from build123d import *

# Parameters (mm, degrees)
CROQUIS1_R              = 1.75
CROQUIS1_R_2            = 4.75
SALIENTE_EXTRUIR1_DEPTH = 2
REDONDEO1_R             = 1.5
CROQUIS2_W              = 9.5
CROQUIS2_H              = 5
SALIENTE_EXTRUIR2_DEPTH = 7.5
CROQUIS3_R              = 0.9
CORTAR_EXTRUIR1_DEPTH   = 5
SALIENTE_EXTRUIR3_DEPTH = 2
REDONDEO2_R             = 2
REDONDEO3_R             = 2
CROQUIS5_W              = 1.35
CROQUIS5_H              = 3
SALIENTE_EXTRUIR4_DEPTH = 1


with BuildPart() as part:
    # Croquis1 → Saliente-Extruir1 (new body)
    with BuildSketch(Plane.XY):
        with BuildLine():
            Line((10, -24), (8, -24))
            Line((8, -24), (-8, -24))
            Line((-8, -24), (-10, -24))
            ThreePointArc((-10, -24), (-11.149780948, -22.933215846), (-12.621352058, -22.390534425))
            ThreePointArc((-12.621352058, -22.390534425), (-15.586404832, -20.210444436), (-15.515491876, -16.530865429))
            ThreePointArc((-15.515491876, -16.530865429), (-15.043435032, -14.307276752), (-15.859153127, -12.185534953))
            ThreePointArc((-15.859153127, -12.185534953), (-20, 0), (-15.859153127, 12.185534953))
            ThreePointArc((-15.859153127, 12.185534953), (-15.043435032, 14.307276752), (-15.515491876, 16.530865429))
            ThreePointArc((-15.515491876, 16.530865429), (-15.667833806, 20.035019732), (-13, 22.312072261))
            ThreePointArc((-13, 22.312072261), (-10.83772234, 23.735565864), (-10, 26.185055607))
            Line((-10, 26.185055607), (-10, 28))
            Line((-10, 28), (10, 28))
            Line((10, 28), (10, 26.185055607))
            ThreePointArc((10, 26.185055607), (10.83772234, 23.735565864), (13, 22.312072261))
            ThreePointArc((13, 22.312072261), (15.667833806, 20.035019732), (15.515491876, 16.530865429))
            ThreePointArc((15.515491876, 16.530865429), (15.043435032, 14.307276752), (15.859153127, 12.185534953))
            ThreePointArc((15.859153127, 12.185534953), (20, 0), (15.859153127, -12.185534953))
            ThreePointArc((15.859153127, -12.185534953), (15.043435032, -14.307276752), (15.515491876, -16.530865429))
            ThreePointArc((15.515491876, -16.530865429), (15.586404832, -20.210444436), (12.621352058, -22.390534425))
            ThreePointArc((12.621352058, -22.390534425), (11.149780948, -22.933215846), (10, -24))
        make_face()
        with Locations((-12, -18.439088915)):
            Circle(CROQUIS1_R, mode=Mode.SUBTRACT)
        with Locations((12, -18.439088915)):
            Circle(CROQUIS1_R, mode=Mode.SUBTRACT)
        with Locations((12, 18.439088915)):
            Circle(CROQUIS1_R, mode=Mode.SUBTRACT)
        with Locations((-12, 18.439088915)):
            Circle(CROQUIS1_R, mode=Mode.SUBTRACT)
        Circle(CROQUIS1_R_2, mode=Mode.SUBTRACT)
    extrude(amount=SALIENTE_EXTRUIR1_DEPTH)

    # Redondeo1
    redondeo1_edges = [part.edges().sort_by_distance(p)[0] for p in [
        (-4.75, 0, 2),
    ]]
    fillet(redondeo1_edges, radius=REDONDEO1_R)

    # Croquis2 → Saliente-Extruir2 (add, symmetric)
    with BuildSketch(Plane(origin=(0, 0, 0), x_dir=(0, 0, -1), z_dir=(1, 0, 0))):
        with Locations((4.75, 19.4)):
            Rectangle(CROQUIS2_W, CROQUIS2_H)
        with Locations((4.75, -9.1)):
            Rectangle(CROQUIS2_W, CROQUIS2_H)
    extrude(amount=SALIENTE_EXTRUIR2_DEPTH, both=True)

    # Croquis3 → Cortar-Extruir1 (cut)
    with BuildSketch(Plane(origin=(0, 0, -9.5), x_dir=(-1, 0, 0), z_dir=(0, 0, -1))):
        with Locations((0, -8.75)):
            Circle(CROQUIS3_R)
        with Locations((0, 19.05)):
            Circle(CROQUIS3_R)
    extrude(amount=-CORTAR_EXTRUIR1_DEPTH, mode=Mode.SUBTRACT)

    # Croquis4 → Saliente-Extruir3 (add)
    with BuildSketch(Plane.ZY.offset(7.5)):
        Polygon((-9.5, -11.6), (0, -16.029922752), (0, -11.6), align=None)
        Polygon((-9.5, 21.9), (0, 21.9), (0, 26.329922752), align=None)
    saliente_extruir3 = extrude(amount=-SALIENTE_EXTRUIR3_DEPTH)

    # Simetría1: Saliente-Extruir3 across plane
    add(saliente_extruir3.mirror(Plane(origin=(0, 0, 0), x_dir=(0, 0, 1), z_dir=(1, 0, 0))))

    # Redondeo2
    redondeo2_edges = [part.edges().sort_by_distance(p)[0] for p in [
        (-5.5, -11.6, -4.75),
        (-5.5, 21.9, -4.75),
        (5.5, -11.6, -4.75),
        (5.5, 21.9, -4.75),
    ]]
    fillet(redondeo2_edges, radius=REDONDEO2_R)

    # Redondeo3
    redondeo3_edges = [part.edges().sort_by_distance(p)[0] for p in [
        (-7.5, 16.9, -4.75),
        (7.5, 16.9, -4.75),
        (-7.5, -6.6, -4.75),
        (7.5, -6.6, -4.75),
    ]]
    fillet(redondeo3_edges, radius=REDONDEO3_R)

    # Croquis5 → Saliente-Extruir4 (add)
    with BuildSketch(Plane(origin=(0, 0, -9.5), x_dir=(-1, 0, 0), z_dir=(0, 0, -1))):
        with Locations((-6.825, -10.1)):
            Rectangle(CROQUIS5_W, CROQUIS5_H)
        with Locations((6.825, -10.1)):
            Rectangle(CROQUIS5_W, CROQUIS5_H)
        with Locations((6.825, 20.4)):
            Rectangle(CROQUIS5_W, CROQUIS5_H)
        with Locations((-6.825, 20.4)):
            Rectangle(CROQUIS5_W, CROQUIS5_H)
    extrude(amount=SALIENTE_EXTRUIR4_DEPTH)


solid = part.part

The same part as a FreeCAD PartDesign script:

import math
import FreeCAD as App
import Part
import Sketcher
from FreeCAD import Vector
Q = App.Units.Quantity


def edges_at(feature, points):
    """Names of the edges that pass closest to the given points."""
    edges = feature.Shape.Edges
    near = lambda p: min(range(len(edges)), key=lambda i: edges[i].distToShape(Part.Vertex(*p))[0])
    return sorted({f"Edge{near(p) + 1}" for p in points})


def add_polygon(sketch, points):
    """Adds a closed chain of lines whose ends are joined by coincident constraints."""
    first, n = sketch.GeometryCount, len(points)
    for a, b in zip(points, points[1:] + points[:1]):
        sketch.addGeometry(Part.LineSegment(App.Vector(*a, 0), App.Vector(*b, 0)), False)
    for i in range(n):
        sketch.addConstraint(Sketcher.Constraint("Coincident", first + i, 2, first + (i + 1) % n, 1))

doc = App.newDocument("Part")
body = doc.addObject("PartDesign::Body", "Body")

# Sketch on XY plane
sketch1 = doc.addObject("Sketcher::SketchObject", "Sketch")
body.addObject(sketch1)
sketch1.AttachmentSupport = (doc.XY_Plane, [""])
sketch1.MapMode = "FlatFace"
sketch1.addGeometry(Part.LineSegment(Vector(-10, -24, 0), Vector(10, -24, 0)), False)
sketch1.addGeometry(Part.ArcOfCircle(Part.Circle(Vector(13.2, -26.3, 0), Vector(0, 0, 1), 4), math.radians(99), math.radians(144)), False)
sketch1.addGeometry(Part.ArcOfCircle(Part.Circle(Vector(12, -18.4, 0), Vector(0, 0, 1), 4), math.radians(-81), math.radians(28)), False)
sketch1.addGeometry(Part.ArcOfCircle(Part.Circle(Vector(19, -14.6, 0), Vector(0, 0, 1), 4), math.radians(142), math.radians(208)), False)
sketch1.addGeometry(Part.ArcOfCircle(Part.Circle(Vector(0, 0, 0), Vector(0, 0, 1), 20), math.radians(-38), math.radians(38)), False)
sketch1.addGeometry(Part.ArcOfCircle(Part.Circle(Vector(19, 14.6, 0), Vector(0, 0, 1), 4), math.radians(152), math.radians(218)), False)
sketch1.addGeometry(Part.ArcOfCircle(Part.Circle(Vector(12, 18.4, 0), Vector(0, 0, 1), 4), math.radians(-28), math.radians(76)), False)
sketch1.addGeometry(Part.ArcOfCircle(Part.Circle(Vector(14, 26.2, 0), Vector(0, 0, 1), 4), math.radians(180), math.radians(256)), False)
sketch1.addGeometry(Part.LineSegment(Vector(10, 26.2, 0), Vector(10, 28, 0)), False)
sketch1.addGeometry(Part.LineSegment(Vector(10, 28, 0), Vector(-10, 28, 0)), False)
sketch1.addGeometry(Part.LineSegment(Vector(-10, 28, 0), Vector(-10, 26.2, 0)), False)
sketch1.addGeometry(Part.ArcOfCircle(Part.Circle(Vector(-14, 26.2, 0), Vector(0, 0, 1), 4), math.radians(-76), math.radians(0)), False)
sketch1.addGeometry(Part.ArcOfCircle(Part.Circle(Vector(-12, 18.4, 0), Vector(0, 0, 1), 4), math.radians(104), math.radians(208)), False)
sketch1.addGeometry(Part.ArcOfCircle(Part.Circle(Vector(-19, 14.6, 0), Vector(0, 0, 1), 4), math.radians(-38), math.radians(28)), False)
sketch1.addGeometry(Part.ArcOfCircle(Part.Circle(Vector(0, 0, 0), Vector(0, 0, 1), 20), math.radians(142), math.radians(218)), False)
sketch1.addGeometry(Part.ArcOfCircle(Part.Circle(Vector(-19, -14.6, 0), Vector(0, 0, 1), 4), math.radians(-28), math.radians(38)), False)
sketch1.addGeometry(Part.ArcOfCircle(Part.Circle(Vector(-12, -18.4, 0), Vector(0, 0, 1), 4), math.radians(152), math.radians(261)), False)
sketch1.addGeometry(Part.ArcOfCircle(Part.Circle(Vector(-13.2, -26.3, 0), Vector(0, 0, 1), 4), math.radians(36), math.radians(81)), False)
sketch1.addGeometry(Part.Circle(Vector(12, -18.4, 0), Vector(0, 0, 1), 1.8), False)
sketch1.addGeometry(Part.Circle(Vector(-12, -18.4, 0), Vector(0, 0, 1), 1.8), False)
sketch1.addGeometry(Part.Circle(Vector(12, 18.4, 0), Vector(0, 0, 1), 1.8), False)
sketch1.addGeometry(Part.Circle(Vector(0, 0, 0), Vector(0, 0, 1), 4.8), False)
sketch1.addGeometry(Part.Circle(Vector(-12, 18.4, 0), Vector(0, 0, 1), 1.8), False)
sketch1.addConstraint(Sketcher.Constraint("Coincident", 0, 2, 1, 2))
sketch1.addConstraint(Sketcher.Constraint("Tangent", 1, 1, 2, 1))
sketch1.addConstraint(Sketcher.Constraint("Tangent", 2, 2, 3, 2))
sketch1.addConstraint(Sketcher.Constraint("Tangent", 3, 1, 4, 1))
sketch1.addConstraint(Sketcher.Constraint("Tangent", 4, 2, 5, 2))
sketch1.addConstraint(Sketcher.Constraint("Tangent", 5, 1, 6, 1))
sketch1.addConstraint(Sketcher.Constraint("Tangent", 6, 2, 7, 2))
sketch1.addConstraint(Sketcher.Constraint("Tangent", 7, 1, 8, 1))
sketch1.addConstraint(Sketcher.Constraint("Coincident", 8, 2, 9, 1))
sketch1.addConstraint(Sketcher.Constraint("Coincident", 9, 2, 10, 1))
sketch1.addConstraint(Sketcher.Constraint("Tangent", 10, 2, 11, 2))
sketch1.addConstraint(Sketcher.Constraint("Tangent", 11, 1, 12, 1))
sketch1.addConstraint(Sketcher.Constraint("Tangent", 12, 2, 13, 2))
sketch1.addConstraint(Sketcher.Constraint("Tangent", 13, 1, 14, 1))
sketch1.addConstraint(Sketcher.Constraint("Tangent", 14, 2, 15, 2))
sketch1.addConstraint(Sketcher.Constraint("Tangent", 15, 1, 16, 1))
sketch1.addConstraint(Sketcher.Constraint("Tangent", 16, 2, 17, 2))
sketch1.addConstraint(Sketcher.Constraint("Coincident", 17, 1, 0, 1))
sketch1.addConstraint(Sketcher.Constraint("Horizontal", 0))
sketch1.addConstraint(Sketcher.Constraint("Vertical", 8))
sketch1.addConstraint(Sketcher.Constraint("Horizontal", 9))
sketch1.addConstraint(Sketcher.Constraint("Vertical", 10))
sketch1.addConstraint(Sketcher.Constraint("Coincident", 4, 3, -1, 1))
sketch1.addConstraint(Sketcher.Constraint("Coincident", 14, 3, -1, 1))
sketch1.addConstraint(Sketcher.Constraint("Coincident", 21, 3, -1, 1))
sketch1.addConstraint(Sketcher.Constraint("Coincident", 18, 3, 2, 3))
sketch1.addConstraint(Sketcher.Constraint("Coincident", 19, 3, 16, 3))
sketch1.addConstraint(Sketcher.Constraint("Coincident", 20, 3, 6, 3))
sketch1.addConstraint(Sketcher.Constraint("Coincident", 22, 3, 12, 3))
sketch1.addConstraint(Sketcher.Constraint("Equal", 1, 2))
sketch1.addConstraint(Sketcher.Constraint("Equal", 2, 3))
sketch1.addConstraint(Sketcher.Constraint("Equal", 3, 5))
sketch1.addConstraint(Sketcher.Constraint("Equal", 5, 6))
sketch1.addConstraint(Sketcher.Constraint("Equal", 6, 7))
sketch1.addConstraint(Sketcher.Constraint("Equal", 7, 11))
sketch1.addConstraint(Sketcher.Constraint("Equal", 11, 12))
sketch1.addConstraint(Sketcher.Constraint("Equal", 12, 13))
sketch1.addConstraint(Sketcher.Constraint("Equal", 4, 14))
sketch1.addConstraint(Sketcher.Constraint("Equal", 13, 15))
sketch1.addConstraint(Sketcher.Constraint("Equal", 15, 16))
sketch1.addConstraint(Sketcher.Constraint("Equal", 16, 17))
sketch1.addConstraint(Sketcher.Constraint("Equal", 18, 19))
sketch1.addConstraint(Sketcher.Constraint("Equal", 19, 20))
sketch1.addConstraint(Sketcher.Constraint("Equal", 20, 22))
sketch1.addConstraint(Sketcher.Constraint("Symmetric", 2, 3, 12, 3, -1, 1))
sketch1.addConstraint(Sketcher.Constraint("Symmetric", 6, 3, 16, 3, -1, 1))
sketch1.addConstraint(Sketcher.Constraint("Symmetric", 7, 3, 11, 3, -2))
sketch1.addConstraint(Sketcher.Constraint("Symmetric", 1, 3, 17, 3, -2))
sketch1.addConstraint(Sketcher.Constraint("Vertical", 0, 2, 7, 1))
sketch1.addConstraint(Sketcher.Constraint("Radius", 1, Q("4 mm")))
sketch1.addConstraint(Sketcher.Constraint("Radius", 4, Q("20 mm")))
sketch1.addConstraint(Sketcher.Constraint("Diameter", 18, Q("3.5 mm")))
sketch1.addConstraint(Sketcher.Constraint("Diameter", 21, Q("9.5 mm")))
sketch1.addConstraint(Sketcher.Constraint("DistanceX", 0, 1, 0, 2, Q("20 mm")))
sketch1.addConstraint(Sketcher.Constraint("DistanceX", -1, 1, 2, 3, Q("12 mm")))
sketch1.addConstraint(Sketcher.Constraint("DistanceY", 0, 2, -1, 1, Q("24 mm")))
sketch1.addConstraint(Sketcher.Constraint("DistanceY", -1, 1, 8, 2, Q("28 mm")))
sketch1.addConstraint(Sketcher.Constraint("DistanceY", 1, 1, 3, 1, Q("10.204999 mm")))
pad1 = doc.addObject("PartDesign::Pad", "Pad")
body.addObject(pad1)
pad1.Profile = sketch1
pad1.Length = 2
doc.recompute()

fillet = doc.addObject("PartDesign::Fillet", "Fillet")
body.addObject(fillet)
fillet.Base = (pad1, edges_at(pad1, [(-4.75, 0, 2)]))
fillet.Radius = 1.5

# Sketch on YZ plane
sketch2 = doc.addObject("Sketcher::SketchObject", "Sketch001")
body.addObject(sketch2)
sketch2.AttachmentSupport = (doc.YZ_Plane, [""])
sketch2.MapMode = "FlatFace"
add_polygon(sketch2, [(22, 0), (17, 0), (17, -10), (22, -10)])  # lines 0-3
add_polygon(sketch2, [(-7, 0), (-12, 0), (-12, -10), (-7, -10)])  # lines 4-7
sketch2.addConstraint(Sketcher.Constraint("Horizontal", 0))
sketch2.addConstraint(Sketcher.Constraint("Vertical", 1))
sketch2.addConstraint(Sketcher.Constraint("Horizontal", 2))
sketch2.addConstraint(Sketcher.Constraint("Vertical", 3))
sketch2.addConstraint(Sketcher.Constraint("Horizontal", 4))
sketch2.addConstraint(Sketcher.Constraint("Vertical", 5))
sketch2.addConstraint(Sketcher.Constraint("Horizontal", 6))
sketch2.addConstraint(Sketcher.Constraint("Vertical", 7))
sketch2.addConstraint(Sketcher.Constraint("PointOnObject", 0, 2, -1))
sketch2.addConstraint(Sketcher.Constraint("PointOnObject", 4, 2, -1))
sketch2.addConstraint(Sketcher.Constraint("Horizontal", 2, 2, 5, 2))
sketch2.addConstraint(Sketcher.Constraint("Equal", 2, 4))
sketch2.addConstraint(Sketcher.Constraint("DistanceX", 0, 2, 0, 1, Q("5 mm")))
sketch2.addConstraint(Sketcher.Constraint("DistanceY", 1, 2, 1, 1, Q("9.5 mm")))
sketch2.addConstraint(Sketcher.Constraint("DistanceX", -1, 1, 0, 2, Q("16.9 mm")))
sketch2.addConstraint(Sketcher.Constraint("DistanceX", 4, 2, -1, 1, Q("11.6 mm")))
pad2 = doc.addObject("PartDesign::Pad", "Pad001")
body.addObject(pad2)
pad2.Profile = sketch2
pad2.Length = 15
pad2.Midplane = True

# Sketch on XY plane
sketch3 = doc.addObject("Sketcher::SketchObject", "Sketch002")
body.addObject(sketch3)
sketch3.AttachmentSupport = (doc.XY_Plane, [""])
sketch3.MapMode = "FlatFace"
sketch3.AttachmentOffset = App.Placement(Vector(0, 0, -9.5), App.Rotation())
sketch3.addGeometry(Part.Circle(Vector(0, -8.8, 0), Vector(0, 0, 1), 0.9), False)
sketch3.addGeometry(Part.Circle(Vector(0, 19.1, 0), Vector(0, 0, 1), 0.9), False)
sketch3.addConstraint(Sketcher.Constraint("Equal", 0, 1))
sketch3.addConstraint(Sketcher.Constraint("PointOnObject", 0, 3, -2))
sketch3.addConstraint(Sketcher.Constraint("PointOnObject", 1, 3, -2))
sketch3.addConstraint(Sketcher.Constraint("Diameter", 0, Q("1.8 mm")))
sketch3.addConstraint(Sketcher.Constraint("DistanceY", 0, 3, 1, 3, Q("27.8 mm")))
sketch3.addConstraint(Sketcher.Constraint("DistanceY", 0, 3, -1, 1, Q("8.75 mm")))
pocket1 = doc.addObject("PartDesign::Pocket", "Pocket")
body.addObject(pocket1)
pocket1.Profile = sketch3
pocket1.Length = 5
pocket1.Reversed = True

# Sketch on YZ plane
sketch4 = doc.addObject("Sketcher::SketchObject", "Sketch003")
body.addObject(sketch4)
sketch4.AttachmentSupport = (doc.YZ_Plane, [""])
sketch4.MapMode = "FlatFace"
sketch4.AttachmentOffset = App.Placement(Vector(0, 0, -7.5), App.Rotation())
add_polygon(sketch4, [(-11.6, -9.5), (-16, 0), (-11.6, 0)])  # lines 0-2
add_polygon(sketch4, [(21.9, -9.5), (21.9, 0), (26.3, 0)])  # lines 3-5
sketch4.addConstraint(Sketcher.Constraint("Horizontal", 1))
sketch4.addConstraint(Sketcher.Constraint("Vertical", 2))
sketch4.addConstraint(Sketcher.Constraint("Vertical", 3))
sketch4.addConstraint(Sketcher.Constraint("Horizontal", 4))
sketch4.addConstraint(Sketcher.Constraint("PointOnObject", 0, 2, -1))
sketch4.addConstraint(Sketcher.Constraint("PointOnObject", 3, 2, -1))
sketch4.addConstraint(Sketcher.Constraint("Horizontal", 2, 2, 5, 2))
sketch4.addConstraint(Sketcher.Constraint("Equal", 1, 4))
sketch4.addConstraint(Sketcher.Constraint("Angle", 0, Q("115 deg")))
sketch4.addConstraint(Sketcher.Constraint("DistanceY", 2, 2, 2, 1, Q("9.5 mm")))
sketch4.addConstraint(Sketcher.Constraint("DistanceX", 1, 2, -1, 1, Q("11.6 mm")))
sketch4.addConstraint(Sketcher.Constraint("DistanceX", -1, 1, 3, 2, Q("21.9 mm")))
pad3 = doc.addObject("PartDesign::Pad", "Pad002")
body.addObject(pad3)
pad3.Profile = sketch4
pad3.Length = 2
doc.recompute()

mirrored = doc.addObject("PartDesign::Mirrored", "Mirrored")
body.addObject(mirrored)
mirrored.Originals = [pad3]
mirrored.MirrorPlane = (doc.YZ_Plane, [""])
body.Tip = mirrored
doc.recompute()

fillet2 = doc.addObject("PartDesign::Fillet", "Fillet001")
body.addObject(fillet2)
fillet2.Base = (mirrored, edges_at(mirrored, [
    (-5.5, -11.6, -4.75),
    (-5.5, 21.9, -4.75),
    (5.5, -11.6, -4.75),
    (5.5, 21.9, -4.75),
]))
fillet2.Radius = 2
doc.recompute()

fillet3 = doc.addObject("PartDesign::Fillet", "Fillet002")
body.addObject(fillet3)
fillet3.Base = (fillet2, edges_at(fillet2, [
    (-7.5, 16.9, -4.75),
    (7.5, 16.9, -4.75),
    (-7.5, -6.6, -4.75),
    (7.5, -6.6, -4.75),
]))
fillet3.Radius = 2

# Sketch on XY plane
sketch5 = doc.addObject("Sketcher::SketchObject", "Sketch004")
body.addObject(sketch5)
sketch5.AttachmentSupport = (doc.XY_Plane, [""])
sketch5.MapMode = "FlatFace"
sketch5.AttachmentOffset = App.Placement(Vector(0, 0, -9.5), App.Rotation())
add_polygon(sketch5, [(7.5, -8.6), (7.5, -11.6), (6.2, -11.6), (6.2, -8.6)])  # lines 0-3
add_polygon(sketch5, [(-6.2, -8.6), (-6.2, -11.6), (-7.5, -11.6), (-7.5, -8.6)])  # lines 4-7
add_polygon(sketch5, [(-6.2, 21.9), (-6.2, 18.9), (-7.5, 18.9), (-7.5, 21.9)])  # lines 8-11
add_polygon(sketch5, [(7.5, 21.9), (7.5, 18.9), (6.2, 18.9), (6.2, 21.9)])  # lines 12-15
sketch5.addConstraint(Sketcher.Constraint("Vertical", 0))
sketch5.addConstraint(Sketcher.Constraint("Horizontal", 1))
sketch5.addConstraint(Sketcher.Constraint("Vertical", 2))
sketch5.addConstraint(Sketcher.Constraint("Horizontal", 3))
sketch5.addConstraint(Sketcher.Constraint("Vertical", 4))
sketch5.addConstraint(Sketcher.Constraint("Horizontal", 5))
sketch5.addConstraint(Sketcher.Constraint("Vertical", 6))
sketch5.addConstraint(Sketcher.Constraint("Horizontal", 7))
sketch5.addConstraint(Sketcher.Constraint("Vertical", 8))
sketch5.addConstraint(Sketcher.Constraint("Horizontal", 9))
sketch5.addConstraint(Sketcher.Constraint("Vertical", 10))
sketch5.addConstraint(Sketcher.Constraint("Horizontal", 11))
sketch5.addConstraint(Sketcher.Constraint("Vertical", 12))
sketch5.addConstraint(Sketcher.Constraint("Horizontal", 13))
sketch5.addConstraint(Sketcher.Constraint("Vertical", 14))
sketch5.addConstraint(Sketcher.Constraint("Horizontal", 15))
sketch5.addConstraint(Sketcher.Constraint("Symmetric", 1, 2, 4, 2, -2))
sketch5.addConstraint(Sketcher.Constraint("Symmetric", 3, 2, 6, 2, -2))
sketch5.addConstraint(Sketcher.Constraint("Symmetric", 9, 2, 12, 2, -2))
sketch5.addConstraint(Sketcher.Constraint("Symmetric", 11, 2, 14, 2, -2))
sketch5.addConstraint(Sketcher.Constraint("Vertical", 7, 2, 8, 2))
sketch5.addConstraint(Sketcher.Constraint("Vertical", 6, 2, 9, 2))
sketch5.addConstraint(Sketcher.Constraint("Equal", 6, 8))
sketch5.addConstraint(Sketcher.Constraint("DistanceY", 0, 2, 0, 1, Q("3 mm")))
sketch5.addConstraint(Sketcher.Constraint("DistanceX", 5, 2, 0, 2, Q("15 mm")))
sketch5.addConstraint(Sketcher.Constraint("DistanceX", 1, 2, 1, 1, Q("1.35 mm")))
sketch5.addConstraint(Sketcher.Constraint("DistanceY", 0, 2, -1, 1, Q("11.6 mm")))
sketch5.addConstraint(Sketcher.Constraint("DistanceY", -1, 1, 8, 2, Q("18.9 mm")))
pad4 = doc.addObject("PartDesign::Pad", "Pad003")
body.addObject(pad4)
pad4.Profile = sketch5
pad4.Length = 1
pad4.Reversed = True

doc.recompute()
